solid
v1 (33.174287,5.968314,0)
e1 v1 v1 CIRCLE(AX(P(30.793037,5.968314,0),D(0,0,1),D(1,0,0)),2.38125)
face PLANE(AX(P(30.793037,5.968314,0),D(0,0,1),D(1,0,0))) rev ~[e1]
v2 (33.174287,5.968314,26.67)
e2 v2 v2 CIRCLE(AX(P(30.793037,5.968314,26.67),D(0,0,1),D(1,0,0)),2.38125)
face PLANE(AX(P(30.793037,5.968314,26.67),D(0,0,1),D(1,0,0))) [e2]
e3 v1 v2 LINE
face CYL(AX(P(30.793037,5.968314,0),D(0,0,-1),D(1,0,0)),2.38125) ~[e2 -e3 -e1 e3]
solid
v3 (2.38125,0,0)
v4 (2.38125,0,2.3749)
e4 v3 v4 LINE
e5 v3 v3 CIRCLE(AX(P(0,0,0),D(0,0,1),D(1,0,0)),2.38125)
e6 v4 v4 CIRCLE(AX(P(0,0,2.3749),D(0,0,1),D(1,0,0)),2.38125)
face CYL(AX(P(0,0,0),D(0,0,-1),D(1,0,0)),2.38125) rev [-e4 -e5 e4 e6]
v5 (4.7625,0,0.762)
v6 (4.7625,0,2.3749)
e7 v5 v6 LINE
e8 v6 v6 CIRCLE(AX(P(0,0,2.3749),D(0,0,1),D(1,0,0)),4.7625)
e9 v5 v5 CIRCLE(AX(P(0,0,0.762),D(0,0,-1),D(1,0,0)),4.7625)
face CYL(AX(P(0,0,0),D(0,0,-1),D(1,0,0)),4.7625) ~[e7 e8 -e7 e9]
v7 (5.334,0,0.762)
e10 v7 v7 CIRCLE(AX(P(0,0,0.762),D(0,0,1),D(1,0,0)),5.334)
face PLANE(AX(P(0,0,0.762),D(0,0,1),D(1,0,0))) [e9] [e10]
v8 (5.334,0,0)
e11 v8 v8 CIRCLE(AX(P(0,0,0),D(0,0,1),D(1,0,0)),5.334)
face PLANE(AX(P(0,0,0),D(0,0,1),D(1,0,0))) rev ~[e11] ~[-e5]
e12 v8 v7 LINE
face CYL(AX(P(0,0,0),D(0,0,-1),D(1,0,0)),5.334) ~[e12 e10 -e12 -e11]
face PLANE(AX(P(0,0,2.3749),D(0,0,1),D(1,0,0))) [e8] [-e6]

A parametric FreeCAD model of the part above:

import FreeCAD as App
import Part
import Sketcher

V = App.Vector
Q = App.Units.Quantity

doc = App.newDocument("Part")
params = doc.addObject("Spreadsheet::Sheet", "Params")
for row, (alias, value) in enumerate([
    ("sketch1_diameter", "0.42 in"),
    ("sketch1_diameter2", "0.1875 in"),
    ("pad1_length", "0.03 in"),
    ("sketch2_diameter", "0.375 in"),
    ("sketch2_diameter2", "0.1875 in"),
    ("pad2_length", "0.0935 in"),
    ("sketch3_diameter", "0.1875 in"),
    ("pad3_length", "1.05 in"),
], start=1):
    params.set(f"A{row}", alias)
    params.set(f"B{row}", "=" + value)
    params.setAlias(f"B{row}", alias)

body = doc.addObject("PartDesign::Body", "Body")

sketch1 = body.newObject("Sketcher::SketchObject", "Sketch")
sketch1.AttachmentSupport = (doc.getObject("XY_Plane"), [""])
sketch1.MapMode = "FlatFace"
sketch1.addGeometry([
    Part.Circle(V(0, 0, 0), V(0, 0, 1), 5.3),
    Part.Circle(V(0, 0, 0), V(0, 0, 1), 2.4),
], False)
sketch1.addConstraint([
    Sketcher.Constraint("Coincident", 0, 3, -1, 1),
    Sketcher.Constraint("Coincident", 1, 3, -1, 1),
    Sketcher.Constraint("Diameter", 0, Q("0.42 in")),
    Sketcher.Constraint("Diameter", 1, Q("0.1875 in")),
])
sketch1.setExpression("Constraints[2]", "Params.sketch1_diameter")
sketch1.setExpression("Constraints[3]", "Params.sketch1_diameter2")
pad1 = body.newObject("PartDesign::Pad", "Pad")
pad1.Profile = sketch1
pad1.setExpression("Length", "Params.pad1_length")

sketch2 = body.newObject("Sketcher::SketchObject", "Sketch001")
sketch2.AttachmentSupport = (doc.getObject("XY_Plane"), [""])
sketch2.MapMode = "FlatFace"
sketch2.addGeometry([
    Part.Circle(V(0, 0, 0), V(0, 0, 1), 4.8),
    Part.Circle(V(0, 0, 0), V(0, 0, 1), 2.4),
], False)
sketch2.addConstraint([
    Sketcher.Constraint("Coincident", 0, 3, -1, 1),
    Sketcher.Constraint("Coincident", 1, 3, -1, 1),
    Sketcher.Constraint("Diameter", 0, Q("0.375 in")),
    Sketcher.Constraint("Diameter", 1, Q("0.1875 in")),
])
sketch2.setExpression("Constraints[2]", "Params.sketch2_diameter")
sketch2.setExpression("Constraints[3]", "Params.sketch2_diameter2")
pad2 = body.newObject("PartDesign::Pad", "Pad001")
pad2.Profile = sketch2
pad2.setExpression("Length", "Params.pad2_length")
body2 = doc.addObject("PartDesign::Body", "Body001")

sketch3 = body2.newObject("Sketcher::SketchObject", "Sketch002")
sketch3.AttachmentSupport = (doc.getObject("XY_Plane001"), [""])
sketch3.MapMode = "FlatFace"
sketch3.addGeometry(Part.Circle(V(30.8, 6, 0), V(0, 0, 1), 2.4), False)
sketch3.addConstraint([
    Sketcher.Constraint("Diameter", 0, Q("0.1875 in")),
    Sketcher.Constraint("DistanceX", -1, 1, 0, 3, Q("30.793037 mm")),
    Sketcher.Constraint("DistanceY", -1, 1, 0, 3, Q("5.968314 mm")),
])
sketch3.setExpression("Constraints[0]", "Params.sketch3_diameter")
pad3 = body2.newObject("PartDesign::Pad", "Pad002")
pad3.Profile = sketch3
pad3.setExpression("Length", "Params.pad3_length")

doc.recompute()
